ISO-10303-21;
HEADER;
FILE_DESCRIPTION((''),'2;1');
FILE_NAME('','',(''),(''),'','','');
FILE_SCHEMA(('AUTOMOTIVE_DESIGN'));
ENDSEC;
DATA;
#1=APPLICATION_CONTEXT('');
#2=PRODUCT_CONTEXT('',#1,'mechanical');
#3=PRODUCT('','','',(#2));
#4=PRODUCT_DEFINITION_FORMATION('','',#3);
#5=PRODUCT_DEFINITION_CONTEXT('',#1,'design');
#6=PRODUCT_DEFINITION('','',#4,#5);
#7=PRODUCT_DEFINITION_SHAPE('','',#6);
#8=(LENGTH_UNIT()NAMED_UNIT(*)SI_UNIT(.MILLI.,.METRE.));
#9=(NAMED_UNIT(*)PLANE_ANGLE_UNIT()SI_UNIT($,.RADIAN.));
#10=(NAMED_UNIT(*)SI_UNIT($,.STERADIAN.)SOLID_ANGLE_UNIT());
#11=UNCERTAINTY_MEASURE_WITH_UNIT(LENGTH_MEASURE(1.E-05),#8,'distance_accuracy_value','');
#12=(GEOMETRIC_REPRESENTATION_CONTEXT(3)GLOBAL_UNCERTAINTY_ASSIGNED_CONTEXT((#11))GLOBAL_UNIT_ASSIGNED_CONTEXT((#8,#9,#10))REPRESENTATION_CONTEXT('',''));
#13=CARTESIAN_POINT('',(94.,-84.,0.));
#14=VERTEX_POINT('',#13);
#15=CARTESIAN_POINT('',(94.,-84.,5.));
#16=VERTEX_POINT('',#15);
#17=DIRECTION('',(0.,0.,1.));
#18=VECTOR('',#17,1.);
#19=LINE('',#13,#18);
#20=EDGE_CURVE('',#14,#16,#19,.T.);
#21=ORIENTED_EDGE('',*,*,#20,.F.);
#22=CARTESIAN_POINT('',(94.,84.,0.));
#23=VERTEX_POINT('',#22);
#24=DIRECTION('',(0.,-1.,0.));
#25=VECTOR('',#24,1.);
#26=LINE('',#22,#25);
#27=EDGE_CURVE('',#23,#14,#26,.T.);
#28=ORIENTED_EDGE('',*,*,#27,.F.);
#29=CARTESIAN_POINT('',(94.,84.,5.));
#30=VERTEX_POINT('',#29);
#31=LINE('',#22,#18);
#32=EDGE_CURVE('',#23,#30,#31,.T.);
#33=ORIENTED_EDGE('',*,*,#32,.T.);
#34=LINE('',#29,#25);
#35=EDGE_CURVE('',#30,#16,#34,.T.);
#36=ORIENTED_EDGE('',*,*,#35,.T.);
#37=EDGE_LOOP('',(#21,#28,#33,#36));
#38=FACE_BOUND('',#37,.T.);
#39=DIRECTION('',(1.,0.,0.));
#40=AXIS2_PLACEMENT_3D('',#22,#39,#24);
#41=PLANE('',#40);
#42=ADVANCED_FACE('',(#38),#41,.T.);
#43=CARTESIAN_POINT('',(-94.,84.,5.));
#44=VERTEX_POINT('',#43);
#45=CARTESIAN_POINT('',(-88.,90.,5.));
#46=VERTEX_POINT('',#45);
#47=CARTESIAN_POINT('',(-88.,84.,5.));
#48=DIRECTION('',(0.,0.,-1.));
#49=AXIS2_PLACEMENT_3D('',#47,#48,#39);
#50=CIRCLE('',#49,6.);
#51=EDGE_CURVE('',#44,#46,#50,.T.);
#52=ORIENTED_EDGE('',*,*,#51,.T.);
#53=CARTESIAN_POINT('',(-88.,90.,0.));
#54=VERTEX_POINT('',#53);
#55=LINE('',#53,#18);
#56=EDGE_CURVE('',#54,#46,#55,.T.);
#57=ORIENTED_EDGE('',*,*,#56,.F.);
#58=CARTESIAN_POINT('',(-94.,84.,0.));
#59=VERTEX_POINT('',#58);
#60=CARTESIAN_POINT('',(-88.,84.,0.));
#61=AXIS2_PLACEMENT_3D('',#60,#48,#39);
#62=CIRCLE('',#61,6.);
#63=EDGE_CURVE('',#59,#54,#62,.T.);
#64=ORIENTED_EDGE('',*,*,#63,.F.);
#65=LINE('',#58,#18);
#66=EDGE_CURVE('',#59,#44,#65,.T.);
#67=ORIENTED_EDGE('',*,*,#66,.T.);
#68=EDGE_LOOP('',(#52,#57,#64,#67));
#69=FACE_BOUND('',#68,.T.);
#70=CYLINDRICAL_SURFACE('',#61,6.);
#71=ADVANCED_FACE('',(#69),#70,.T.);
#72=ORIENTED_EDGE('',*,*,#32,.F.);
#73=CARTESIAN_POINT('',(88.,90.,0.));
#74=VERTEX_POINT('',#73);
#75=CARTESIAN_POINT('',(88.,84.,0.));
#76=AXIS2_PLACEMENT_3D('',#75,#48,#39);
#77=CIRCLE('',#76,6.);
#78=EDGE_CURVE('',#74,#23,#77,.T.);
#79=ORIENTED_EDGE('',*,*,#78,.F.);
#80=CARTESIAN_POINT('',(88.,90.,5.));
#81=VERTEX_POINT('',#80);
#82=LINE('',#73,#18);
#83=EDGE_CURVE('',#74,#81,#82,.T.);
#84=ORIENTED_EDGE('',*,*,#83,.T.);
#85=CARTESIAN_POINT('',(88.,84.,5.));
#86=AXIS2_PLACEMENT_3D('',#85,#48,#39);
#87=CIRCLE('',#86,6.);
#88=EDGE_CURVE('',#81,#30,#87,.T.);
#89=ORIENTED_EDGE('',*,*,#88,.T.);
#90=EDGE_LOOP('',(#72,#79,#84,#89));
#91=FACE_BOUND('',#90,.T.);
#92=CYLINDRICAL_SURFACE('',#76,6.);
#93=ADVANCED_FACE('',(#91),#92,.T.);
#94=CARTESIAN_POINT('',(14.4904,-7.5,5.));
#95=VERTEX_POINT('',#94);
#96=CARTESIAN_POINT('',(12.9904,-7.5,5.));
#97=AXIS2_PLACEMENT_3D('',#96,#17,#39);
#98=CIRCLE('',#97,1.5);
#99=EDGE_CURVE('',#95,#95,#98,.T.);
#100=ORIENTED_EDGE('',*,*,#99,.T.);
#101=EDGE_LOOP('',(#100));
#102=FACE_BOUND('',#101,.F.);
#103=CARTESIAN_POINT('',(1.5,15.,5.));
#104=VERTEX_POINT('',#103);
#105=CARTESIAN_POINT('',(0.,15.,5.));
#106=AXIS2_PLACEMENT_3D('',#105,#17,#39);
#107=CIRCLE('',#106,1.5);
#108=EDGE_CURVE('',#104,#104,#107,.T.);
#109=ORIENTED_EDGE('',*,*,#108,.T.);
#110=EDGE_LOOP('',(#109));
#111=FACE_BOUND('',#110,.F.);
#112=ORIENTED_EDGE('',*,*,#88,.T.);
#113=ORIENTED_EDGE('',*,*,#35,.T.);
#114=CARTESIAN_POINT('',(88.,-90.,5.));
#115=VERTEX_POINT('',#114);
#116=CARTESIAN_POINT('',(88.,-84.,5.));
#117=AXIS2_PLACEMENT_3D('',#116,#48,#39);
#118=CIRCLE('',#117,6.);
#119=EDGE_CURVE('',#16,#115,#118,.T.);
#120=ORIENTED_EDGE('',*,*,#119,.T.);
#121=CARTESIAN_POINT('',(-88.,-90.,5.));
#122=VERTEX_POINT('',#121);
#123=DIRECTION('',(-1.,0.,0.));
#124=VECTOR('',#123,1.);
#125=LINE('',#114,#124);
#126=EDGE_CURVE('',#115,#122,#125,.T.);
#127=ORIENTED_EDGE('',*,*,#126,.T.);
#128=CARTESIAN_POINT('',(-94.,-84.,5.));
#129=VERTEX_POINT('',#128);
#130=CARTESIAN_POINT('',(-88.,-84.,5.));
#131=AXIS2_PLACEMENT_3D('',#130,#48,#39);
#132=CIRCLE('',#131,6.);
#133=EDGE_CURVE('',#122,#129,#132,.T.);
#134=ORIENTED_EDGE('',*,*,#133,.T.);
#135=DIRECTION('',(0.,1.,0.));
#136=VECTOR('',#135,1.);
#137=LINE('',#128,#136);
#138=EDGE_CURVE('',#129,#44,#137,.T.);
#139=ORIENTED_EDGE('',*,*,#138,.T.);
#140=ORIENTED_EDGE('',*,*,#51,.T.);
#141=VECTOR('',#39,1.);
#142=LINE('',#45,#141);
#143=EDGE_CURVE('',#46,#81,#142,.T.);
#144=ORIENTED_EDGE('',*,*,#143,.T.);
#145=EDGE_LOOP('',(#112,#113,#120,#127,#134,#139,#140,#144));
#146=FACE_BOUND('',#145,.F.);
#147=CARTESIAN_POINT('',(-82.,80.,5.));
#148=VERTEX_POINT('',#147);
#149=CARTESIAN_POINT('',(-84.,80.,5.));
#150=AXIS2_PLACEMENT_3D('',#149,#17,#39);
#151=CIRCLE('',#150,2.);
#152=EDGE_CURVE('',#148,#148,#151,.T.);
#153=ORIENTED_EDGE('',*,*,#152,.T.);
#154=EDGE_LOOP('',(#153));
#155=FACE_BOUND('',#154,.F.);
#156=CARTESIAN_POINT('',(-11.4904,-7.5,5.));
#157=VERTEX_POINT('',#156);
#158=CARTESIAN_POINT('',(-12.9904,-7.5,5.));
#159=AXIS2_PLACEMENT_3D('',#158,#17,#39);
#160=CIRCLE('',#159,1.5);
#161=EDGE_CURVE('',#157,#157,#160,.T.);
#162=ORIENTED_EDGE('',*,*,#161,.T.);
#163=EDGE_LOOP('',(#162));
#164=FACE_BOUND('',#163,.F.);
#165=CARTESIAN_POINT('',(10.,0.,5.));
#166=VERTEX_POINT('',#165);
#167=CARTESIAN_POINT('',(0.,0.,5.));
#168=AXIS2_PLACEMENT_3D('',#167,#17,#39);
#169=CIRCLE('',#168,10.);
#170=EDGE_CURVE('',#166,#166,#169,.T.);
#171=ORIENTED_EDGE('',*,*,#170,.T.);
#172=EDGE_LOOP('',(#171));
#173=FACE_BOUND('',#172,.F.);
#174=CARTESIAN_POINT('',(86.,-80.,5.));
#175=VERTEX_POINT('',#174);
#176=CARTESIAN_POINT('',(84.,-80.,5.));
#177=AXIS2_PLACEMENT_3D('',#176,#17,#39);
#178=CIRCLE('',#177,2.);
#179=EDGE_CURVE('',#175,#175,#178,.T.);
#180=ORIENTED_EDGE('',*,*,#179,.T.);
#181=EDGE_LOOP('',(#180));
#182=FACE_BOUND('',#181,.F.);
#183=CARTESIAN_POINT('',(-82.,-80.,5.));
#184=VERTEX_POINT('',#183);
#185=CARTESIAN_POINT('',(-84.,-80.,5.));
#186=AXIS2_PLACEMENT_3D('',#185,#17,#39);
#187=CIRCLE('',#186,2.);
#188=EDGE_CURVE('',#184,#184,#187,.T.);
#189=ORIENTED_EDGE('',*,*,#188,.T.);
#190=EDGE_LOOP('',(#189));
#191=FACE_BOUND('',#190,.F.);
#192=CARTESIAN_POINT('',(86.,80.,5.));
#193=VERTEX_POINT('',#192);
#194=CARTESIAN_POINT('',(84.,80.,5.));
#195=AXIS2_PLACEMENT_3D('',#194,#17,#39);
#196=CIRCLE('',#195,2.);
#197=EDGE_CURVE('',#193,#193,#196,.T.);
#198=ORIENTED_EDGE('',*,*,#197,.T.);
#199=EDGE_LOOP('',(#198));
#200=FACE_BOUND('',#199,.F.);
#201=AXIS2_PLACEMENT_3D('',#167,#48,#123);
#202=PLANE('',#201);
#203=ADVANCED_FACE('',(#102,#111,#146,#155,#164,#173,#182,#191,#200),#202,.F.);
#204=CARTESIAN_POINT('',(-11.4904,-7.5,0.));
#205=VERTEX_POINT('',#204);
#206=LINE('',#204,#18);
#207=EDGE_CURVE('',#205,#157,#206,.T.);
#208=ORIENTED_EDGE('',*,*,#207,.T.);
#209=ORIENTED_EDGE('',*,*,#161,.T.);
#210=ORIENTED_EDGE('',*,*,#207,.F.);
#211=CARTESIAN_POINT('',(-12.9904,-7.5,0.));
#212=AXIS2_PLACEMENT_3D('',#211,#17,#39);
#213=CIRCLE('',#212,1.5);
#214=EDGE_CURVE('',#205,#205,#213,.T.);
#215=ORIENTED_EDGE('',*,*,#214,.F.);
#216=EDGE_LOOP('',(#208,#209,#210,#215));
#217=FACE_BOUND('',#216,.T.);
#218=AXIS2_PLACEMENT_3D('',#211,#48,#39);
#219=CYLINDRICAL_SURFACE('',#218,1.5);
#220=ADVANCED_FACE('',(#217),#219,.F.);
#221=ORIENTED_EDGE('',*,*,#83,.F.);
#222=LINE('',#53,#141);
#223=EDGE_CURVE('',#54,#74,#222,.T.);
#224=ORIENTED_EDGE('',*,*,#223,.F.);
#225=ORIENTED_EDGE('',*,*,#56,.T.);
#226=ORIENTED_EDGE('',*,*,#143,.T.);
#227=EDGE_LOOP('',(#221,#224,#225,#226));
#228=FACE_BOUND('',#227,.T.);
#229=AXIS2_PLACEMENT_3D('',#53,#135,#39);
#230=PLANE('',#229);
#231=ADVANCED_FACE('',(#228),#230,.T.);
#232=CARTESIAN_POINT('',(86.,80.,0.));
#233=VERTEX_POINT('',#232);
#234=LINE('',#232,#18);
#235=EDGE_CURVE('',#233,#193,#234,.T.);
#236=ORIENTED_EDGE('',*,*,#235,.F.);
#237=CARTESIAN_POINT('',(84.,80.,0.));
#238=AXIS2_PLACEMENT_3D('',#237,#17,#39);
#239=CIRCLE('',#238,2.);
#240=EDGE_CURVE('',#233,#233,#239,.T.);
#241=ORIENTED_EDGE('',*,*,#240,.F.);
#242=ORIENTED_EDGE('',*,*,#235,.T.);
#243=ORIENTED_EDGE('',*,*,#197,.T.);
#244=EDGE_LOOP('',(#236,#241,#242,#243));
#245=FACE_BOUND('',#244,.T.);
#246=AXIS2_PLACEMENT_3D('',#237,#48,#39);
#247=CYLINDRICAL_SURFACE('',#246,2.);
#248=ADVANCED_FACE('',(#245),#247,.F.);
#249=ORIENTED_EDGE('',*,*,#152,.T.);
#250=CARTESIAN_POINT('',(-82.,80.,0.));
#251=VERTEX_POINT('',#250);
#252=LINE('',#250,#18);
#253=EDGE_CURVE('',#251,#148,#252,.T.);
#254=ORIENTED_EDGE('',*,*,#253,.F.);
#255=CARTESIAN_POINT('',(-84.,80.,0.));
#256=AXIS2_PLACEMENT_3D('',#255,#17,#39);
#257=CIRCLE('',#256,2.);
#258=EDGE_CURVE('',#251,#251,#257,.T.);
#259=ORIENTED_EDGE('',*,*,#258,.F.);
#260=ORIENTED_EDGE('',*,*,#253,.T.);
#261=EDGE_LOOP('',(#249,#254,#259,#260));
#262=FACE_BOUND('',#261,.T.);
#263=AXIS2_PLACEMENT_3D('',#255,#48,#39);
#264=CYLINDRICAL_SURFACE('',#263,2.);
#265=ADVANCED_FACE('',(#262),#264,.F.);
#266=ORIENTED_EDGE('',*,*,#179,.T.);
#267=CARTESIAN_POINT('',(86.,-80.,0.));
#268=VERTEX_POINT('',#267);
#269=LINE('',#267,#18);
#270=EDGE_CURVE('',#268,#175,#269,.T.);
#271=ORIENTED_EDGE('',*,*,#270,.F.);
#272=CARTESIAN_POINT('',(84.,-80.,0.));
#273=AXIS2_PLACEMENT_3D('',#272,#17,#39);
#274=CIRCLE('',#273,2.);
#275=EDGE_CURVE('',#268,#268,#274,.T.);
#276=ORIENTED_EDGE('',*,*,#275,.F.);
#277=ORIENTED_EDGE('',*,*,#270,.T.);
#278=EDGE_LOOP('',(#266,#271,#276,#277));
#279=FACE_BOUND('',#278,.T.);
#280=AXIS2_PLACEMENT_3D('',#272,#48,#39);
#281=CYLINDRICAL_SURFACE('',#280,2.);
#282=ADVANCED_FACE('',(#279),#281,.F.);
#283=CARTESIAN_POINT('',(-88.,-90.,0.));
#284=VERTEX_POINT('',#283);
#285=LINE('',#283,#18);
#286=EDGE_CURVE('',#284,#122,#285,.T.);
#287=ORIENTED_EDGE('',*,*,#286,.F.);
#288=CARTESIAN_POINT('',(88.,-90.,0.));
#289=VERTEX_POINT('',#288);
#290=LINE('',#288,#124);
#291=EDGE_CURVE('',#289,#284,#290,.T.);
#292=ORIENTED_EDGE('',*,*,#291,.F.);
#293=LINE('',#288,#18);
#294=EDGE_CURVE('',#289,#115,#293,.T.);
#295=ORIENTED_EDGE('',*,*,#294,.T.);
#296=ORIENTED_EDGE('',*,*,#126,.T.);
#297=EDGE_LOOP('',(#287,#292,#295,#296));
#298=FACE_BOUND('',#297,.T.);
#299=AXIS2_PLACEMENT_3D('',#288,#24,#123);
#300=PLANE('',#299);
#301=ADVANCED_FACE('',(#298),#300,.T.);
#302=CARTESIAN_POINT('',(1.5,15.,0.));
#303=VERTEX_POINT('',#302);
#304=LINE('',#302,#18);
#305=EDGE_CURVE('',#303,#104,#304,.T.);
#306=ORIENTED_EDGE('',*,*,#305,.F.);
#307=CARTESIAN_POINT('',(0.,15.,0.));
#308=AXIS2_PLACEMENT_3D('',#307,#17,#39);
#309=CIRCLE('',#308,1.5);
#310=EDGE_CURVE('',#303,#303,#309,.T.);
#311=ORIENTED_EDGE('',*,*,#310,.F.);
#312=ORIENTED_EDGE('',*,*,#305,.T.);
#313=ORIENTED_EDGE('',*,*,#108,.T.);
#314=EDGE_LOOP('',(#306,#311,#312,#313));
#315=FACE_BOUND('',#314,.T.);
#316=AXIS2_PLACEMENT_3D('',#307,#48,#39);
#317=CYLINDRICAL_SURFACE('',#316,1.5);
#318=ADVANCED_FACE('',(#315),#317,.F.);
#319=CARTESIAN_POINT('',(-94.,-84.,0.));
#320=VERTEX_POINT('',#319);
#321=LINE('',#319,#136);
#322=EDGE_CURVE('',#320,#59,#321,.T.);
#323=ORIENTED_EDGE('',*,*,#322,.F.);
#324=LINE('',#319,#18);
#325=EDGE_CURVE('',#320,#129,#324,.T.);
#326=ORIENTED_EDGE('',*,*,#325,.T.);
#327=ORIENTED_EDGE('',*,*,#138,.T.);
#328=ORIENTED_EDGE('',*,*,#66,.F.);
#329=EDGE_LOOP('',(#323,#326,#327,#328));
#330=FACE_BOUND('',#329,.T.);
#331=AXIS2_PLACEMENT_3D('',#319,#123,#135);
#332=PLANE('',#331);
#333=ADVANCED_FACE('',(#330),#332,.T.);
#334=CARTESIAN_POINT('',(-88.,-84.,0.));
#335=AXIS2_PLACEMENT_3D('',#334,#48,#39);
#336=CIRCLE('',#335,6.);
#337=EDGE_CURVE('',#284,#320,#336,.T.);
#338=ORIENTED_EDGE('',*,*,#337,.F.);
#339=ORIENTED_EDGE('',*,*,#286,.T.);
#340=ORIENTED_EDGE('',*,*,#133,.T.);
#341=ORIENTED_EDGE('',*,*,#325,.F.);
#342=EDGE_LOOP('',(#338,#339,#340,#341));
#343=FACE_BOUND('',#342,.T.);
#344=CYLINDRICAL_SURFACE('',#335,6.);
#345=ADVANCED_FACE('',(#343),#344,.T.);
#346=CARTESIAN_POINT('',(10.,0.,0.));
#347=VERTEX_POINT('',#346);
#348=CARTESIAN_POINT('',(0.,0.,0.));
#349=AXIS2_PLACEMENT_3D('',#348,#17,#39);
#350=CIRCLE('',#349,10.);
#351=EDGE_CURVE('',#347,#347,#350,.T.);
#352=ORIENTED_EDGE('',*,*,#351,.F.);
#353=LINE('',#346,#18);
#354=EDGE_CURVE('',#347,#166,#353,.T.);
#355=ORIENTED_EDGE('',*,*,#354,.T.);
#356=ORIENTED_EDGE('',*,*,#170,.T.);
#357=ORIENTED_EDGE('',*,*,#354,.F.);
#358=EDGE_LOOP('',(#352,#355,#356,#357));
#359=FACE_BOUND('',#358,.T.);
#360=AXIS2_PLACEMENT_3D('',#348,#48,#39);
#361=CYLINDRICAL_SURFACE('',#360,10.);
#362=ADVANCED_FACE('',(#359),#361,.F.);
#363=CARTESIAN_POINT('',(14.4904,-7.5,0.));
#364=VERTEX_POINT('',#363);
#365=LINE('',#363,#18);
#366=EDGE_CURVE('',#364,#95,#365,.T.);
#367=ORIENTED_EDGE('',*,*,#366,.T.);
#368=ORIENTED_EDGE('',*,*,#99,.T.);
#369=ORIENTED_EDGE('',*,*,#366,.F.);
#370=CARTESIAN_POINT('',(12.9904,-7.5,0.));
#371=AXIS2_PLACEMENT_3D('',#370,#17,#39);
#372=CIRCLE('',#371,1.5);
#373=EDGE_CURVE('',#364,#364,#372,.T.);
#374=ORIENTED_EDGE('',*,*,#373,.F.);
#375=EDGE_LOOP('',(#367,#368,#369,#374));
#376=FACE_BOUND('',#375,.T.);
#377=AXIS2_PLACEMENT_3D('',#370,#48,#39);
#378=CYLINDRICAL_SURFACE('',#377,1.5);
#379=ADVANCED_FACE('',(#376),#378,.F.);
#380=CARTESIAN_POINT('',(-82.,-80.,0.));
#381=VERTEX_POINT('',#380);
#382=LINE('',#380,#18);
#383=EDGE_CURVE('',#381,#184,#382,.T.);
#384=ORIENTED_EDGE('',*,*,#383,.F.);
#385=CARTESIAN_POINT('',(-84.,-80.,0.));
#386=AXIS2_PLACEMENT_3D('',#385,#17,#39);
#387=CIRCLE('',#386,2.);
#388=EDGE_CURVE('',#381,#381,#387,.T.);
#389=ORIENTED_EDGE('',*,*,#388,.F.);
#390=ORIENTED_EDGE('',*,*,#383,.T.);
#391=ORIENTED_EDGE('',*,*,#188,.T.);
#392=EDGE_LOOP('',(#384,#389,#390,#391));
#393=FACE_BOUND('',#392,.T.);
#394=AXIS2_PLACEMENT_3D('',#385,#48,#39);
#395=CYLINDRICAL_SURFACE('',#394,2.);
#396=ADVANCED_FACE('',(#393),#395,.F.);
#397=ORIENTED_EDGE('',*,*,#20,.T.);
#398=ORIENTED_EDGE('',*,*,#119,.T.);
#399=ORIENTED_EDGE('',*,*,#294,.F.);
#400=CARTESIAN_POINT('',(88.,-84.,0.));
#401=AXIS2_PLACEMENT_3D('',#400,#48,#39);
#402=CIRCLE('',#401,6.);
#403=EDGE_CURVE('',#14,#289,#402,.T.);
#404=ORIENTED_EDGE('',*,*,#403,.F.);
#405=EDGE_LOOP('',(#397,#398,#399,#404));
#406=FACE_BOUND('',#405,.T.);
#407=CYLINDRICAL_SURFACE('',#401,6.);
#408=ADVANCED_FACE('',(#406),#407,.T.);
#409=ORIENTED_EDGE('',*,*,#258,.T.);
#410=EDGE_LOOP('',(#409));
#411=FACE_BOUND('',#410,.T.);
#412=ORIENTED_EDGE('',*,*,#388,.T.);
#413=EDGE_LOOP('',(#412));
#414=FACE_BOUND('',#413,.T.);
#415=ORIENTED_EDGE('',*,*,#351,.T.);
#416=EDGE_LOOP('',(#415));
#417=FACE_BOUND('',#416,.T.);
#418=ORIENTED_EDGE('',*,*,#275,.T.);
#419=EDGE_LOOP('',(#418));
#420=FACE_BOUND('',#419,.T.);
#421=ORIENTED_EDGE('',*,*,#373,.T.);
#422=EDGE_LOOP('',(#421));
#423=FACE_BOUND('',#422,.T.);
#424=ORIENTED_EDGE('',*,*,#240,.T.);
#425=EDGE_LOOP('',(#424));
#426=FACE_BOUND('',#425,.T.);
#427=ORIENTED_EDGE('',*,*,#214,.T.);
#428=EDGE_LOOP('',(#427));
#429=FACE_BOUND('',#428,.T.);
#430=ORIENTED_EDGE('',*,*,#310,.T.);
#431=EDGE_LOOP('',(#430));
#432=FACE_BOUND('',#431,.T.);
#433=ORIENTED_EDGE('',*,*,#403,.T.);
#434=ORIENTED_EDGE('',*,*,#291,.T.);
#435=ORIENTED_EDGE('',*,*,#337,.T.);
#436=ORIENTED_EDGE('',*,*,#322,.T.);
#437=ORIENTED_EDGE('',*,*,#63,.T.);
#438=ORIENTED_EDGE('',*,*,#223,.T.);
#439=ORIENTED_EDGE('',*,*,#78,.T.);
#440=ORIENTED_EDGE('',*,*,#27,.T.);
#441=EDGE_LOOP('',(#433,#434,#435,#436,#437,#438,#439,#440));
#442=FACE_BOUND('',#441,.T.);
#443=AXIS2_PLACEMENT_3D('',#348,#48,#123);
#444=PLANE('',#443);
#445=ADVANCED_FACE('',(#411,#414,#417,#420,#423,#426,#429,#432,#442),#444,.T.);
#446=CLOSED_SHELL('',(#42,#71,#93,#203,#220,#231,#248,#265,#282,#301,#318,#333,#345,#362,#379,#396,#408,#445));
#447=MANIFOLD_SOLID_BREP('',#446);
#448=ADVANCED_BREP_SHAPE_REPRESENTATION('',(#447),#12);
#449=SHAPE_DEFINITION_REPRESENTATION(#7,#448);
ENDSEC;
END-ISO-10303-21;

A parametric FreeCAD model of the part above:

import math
import FreeCAD as App
import Part
import Sketcher
from FreeCAD import Vector
Q = App.Units.Quantity

doc = App.newDocument("Part")
body = doc.addObject("PartDesign::Body", "Body")

sketch1 = body.newObject("Sketcher::SketchObject", "Sketch")
sketch1.AttachmentSupport = (doc.getObject("XY_Plane"), [""])
sketch1.MapMode = "FlatFace"
sketch1.addGeometry([
    Part.ArcOfCircle(Part.Circle(Vector(-88, 84, 0), Vector(0, 0, 1), 6), math.radians(90), math.radians(180)),
    Part.LineSegment(Vector(-94, 84, 0), Vector(-94, -84, 0)),
    Part.ArcOfCircle(Part.Circle(Vector(-88, -84, 0), Vector(0, 0, 1), 6), math.radians(180), math.radians(270)),
    Part.LineSegment(Vector(-88, -90, 0), Vector(88, -90, 0)),
    Part.ArcOfCircle(Part.Circle(Vector(88, -84, 0), Vector(0, 0, 1), 6), math.radians(-90), math.radians(0)),
    Part.LineSegment(Vector(94, -84, 0), Vector(94, 84, 0)),
    Part.ArcOfCircle(Part.Circle(Vector(88, 84, 0), Vector(0, 0, 1), 6), math.radians(0), math.radians(90)),
    Part.LineSegment(Vector(88, 90, 0), Vector(-88, 90, 0)),
    Part.Circle(Vector(-84, -80, 0), Vector(0, 0, 1), 2),
    Part.Circle(Vector(-12.9904, -7.5, 0), Vector(0, 0, 1), 1.5),
    Part.Circle(Vector(84, -80, 0), Vector(0, 0, 1), 2),
    Part.Circle(Vector(12.9904, -7.5, 0), Vector(0, 0, 1), 1.5),
    Part.Circle(Vector(-84, 80, 0), Vector(0, 0, 1), 2),
    Part.Circle(Vector(0, 0, 0), Vector(0, 0, 1), 10),
    Part.Circle(Vector(0, 15, 0), Vector(0, 0, 1), 1.5),
    Part.Circle(Vector(84, 80, 0), Vector(0, 0, 1), 2),
], False)
sketch1.addConstraint([
    Sketcher.Constraint("Tangent", 0, 2, 1, 1),
    Sketcher.Constraint("Tangent", 1, 2, 2, 1),
    Sketcher.Constraint("Tangent", 2, 2, 3, 1),
    Sketcher.Constraint("Tangent", 3, 2, 4, 1),
    Sketcher.Constraint("Tangent", 4, 2, 5, 1),
    Sketcher.Constraint("Tangent", 5, 2, 6, 1),
    Sketcher.Constraint("Tangent", 6, 2, 7, 1),
    Sketcher.Constraint("Tangent", 7, 2, 0, 1),
    Sketcher.Constraint("Vertical", 1),
    Sketcher.Constraint("Horizontal", 3),
    Sketcher.Constraint("Vertical", 5),
    Sketcher.Constraint("Horizontal", 7),
    Sketcher.Constraint("Coincident", 13, 3, -1, 1),
    Sketcher.Constraint("Equal", 0, 2),
    Sketcher.Constraint("Equal", 2, 4),
    Sketcher.Constraint("Equal", 4, 6),
    Sketcher.Constraint("Equal", 8, 10),
    Sketcher.Constraint("Equal", 9, 11),
    Sketcher.Constraint("Equal", 10, 12),
    Sketcher.Constraint("Equal", 11, 14),
    Sketcher.Constraint("Equal", 12, 15),
    Sketcher.Constraint("Symmetric", 0, 3, 4, 3, -1, 1),
    Sketcher.Constraint("Symmetric", 10, 3, 12, 3, -1, 1),
    Sketcher.Constraint("Symmetric", 8, 3, 15, 3, -1, 1),
    Sketcher.Constraint("Symmetric", 8, 3, 10, 3, -2),
    Sketcher.Constraint("Symmetric", 9, 3, 11, 3, -2),
    Sketcher.Constraint("PointOnObject", 14, 3, -2),
    Sketcher.Constraint("Diameter", 8, Q("4 mm")),
    Sketcher.Constraint("Diameter", 9, Q("3 mm")),
    Sketcher.Constraint("Diameter", 13, Q("20 mm")),
    Sketcher.Constraint("DistanceY", -1, 1, 0, 3, Q("84 mm")),
    Sketcher.Constraint("DistanceX", 8, 3, -1, 1, Q("84 mm")),
    Sketcher.Constraint("DistanceX", 0, 2, -1, 1, Q("94 mm")),
    Sketcher.Constraint("Radius", 0, Q("6 mm")),
    Sketcher.Constraint("DistanceY", 8, 3, -1, 1, Q("80 mm")),
    Sketcher.Constraint("DistanceY", -1, 1, 14, 3, Q("15 mm")),
    Sketcher.Constraint("DistanceY", 9, 3, -1, 1, Q("7.5 mm")),
    Sketcher.Constraint("DistanceX", 9, 3, -1, 1, Q("12.9904 mm")),
])
pad1 = body.newObject("PartDesign::Pad", "Pad")
pad1.Profile = sketch1
pad1.Length = 5

doc.recompute()
